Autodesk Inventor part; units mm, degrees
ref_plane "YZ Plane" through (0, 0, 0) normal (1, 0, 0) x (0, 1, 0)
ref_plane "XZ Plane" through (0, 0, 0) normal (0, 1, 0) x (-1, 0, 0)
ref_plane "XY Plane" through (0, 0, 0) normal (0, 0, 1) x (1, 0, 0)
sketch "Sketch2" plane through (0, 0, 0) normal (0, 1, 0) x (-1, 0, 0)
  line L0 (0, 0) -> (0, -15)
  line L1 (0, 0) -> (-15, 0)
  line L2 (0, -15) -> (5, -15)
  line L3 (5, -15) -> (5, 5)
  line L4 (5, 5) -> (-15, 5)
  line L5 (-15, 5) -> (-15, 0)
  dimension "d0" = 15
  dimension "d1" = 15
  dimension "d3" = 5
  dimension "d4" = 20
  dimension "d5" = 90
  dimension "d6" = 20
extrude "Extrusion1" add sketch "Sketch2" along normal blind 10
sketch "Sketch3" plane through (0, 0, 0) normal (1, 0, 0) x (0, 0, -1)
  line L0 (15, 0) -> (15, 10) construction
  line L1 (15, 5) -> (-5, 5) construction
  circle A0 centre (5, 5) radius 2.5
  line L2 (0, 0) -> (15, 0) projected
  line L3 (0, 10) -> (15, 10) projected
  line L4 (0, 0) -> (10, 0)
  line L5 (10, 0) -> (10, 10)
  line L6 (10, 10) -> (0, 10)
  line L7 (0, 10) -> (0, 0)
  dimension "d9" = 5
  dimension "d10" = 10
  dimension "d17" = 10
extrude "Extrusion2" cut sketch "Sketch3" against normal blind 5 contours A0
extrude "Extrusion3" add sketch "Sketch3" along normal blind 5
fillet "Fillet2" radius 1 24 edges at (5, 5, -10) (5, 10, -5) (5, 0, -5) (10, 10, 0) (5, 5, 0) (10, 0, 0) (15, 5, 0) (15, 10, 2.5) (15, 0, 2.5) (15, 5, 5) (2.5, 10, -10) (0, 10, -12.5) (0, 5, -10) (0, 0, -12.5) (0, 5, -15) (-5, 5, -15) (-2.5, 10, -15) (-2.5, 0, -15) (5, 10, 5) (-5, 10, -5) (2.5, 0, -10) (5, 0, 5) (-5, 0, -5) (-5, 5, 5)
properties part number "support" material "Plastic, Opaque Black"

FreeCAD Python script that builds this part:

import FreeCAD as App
import Part
import Sketcher
from FreeCAD import Vector


def edges_at(feature, points):
    """Names of the edges that pass closest to the given points."""
    edges = feature.Shape.Edges
    near = lambda p: min(range(len(edges)), key=lambda i: edges[i].distToShape(Part.Vertex(*p))[0])
    return sorted({f"Edge{near(p) + 1}" for p in points})

doc = App.newDocument("Part")
body = doc.addObject("PartDesign::Body", "Body")

sketch1 = body.newObject("Sketcher::SketchObject", "Sketch")
sketch1.AttachmentSupport = (doc.getObject("XZ_Plane"), [""])
sketch1.MapMode = "FlatFace"
sketch1.addGeometry([
    Part.LineSegment(Vector(15, 0, 0), Vector(0, 0, 0)),
    Part.LineSegment(Vector(0, 0, 0), Vector(0, -15, 0)),
    Part.LineSegment(Vector(0, -15, 0), Vector(-5, -15, 0)),
    Part.LineSegment(Vector(-5, -15, 0), Vector(-5, 5, 0)),
    Part.LineSegment(Vector(-5, 5, 0), Vector(15, 5, 0)),
    Part.LineSegment(Vector(15, 5, 0), Vector(15, 0, 0)),
], False)
sketch1.addConstraint([
    Sketcher.Constraint("Coincident", 0, 2, 1, 1),
    Sketcher.Constraint("Coincident", 1, 2, 2, 1),
    Sketcher.Constraint("Coincident", 2, 2, 3, 1),
    Sketcher.Constraint("Coincident", 3, 2, 4, 1),
    Sketcher.Constraint("Coincident", 4, 2, 5, 1),
    Sketcher.Constraint("Coincident", 5, 2, 0, 1),
    Sketcher.Constraint("Horizontal", 0),
    Sketcher.Constraint("Vertical", 1),
    Sketcher.Constraint("Horizontal", 2),
    Sketcher.Constraint("Vertical", 3),
    Sketcher.Constraint("Horizontal", 4),
    Sketcher.Constraint("Vertical", 5),
    Sketcher.Constraint("Coincident", 0, 2, -1, 1),
    Sketcher.Constraint("Equal", 0, 1),
    Sketcher.Constraint("Equal", 4, 3),
    Sketcher.Constraint("DistanceX", 0, 2, 0, 1, 15.0),
    Sketcher.Constraint("DistanceX", 2, 2, 2, 1, 5.0),
])
pad1 = body.newObject("PartDesign::Pad", "Pad")
pad1.Profile = sketch1
pad1.Length = 10
pad1.Reversed = True

sketch2 = body.newObject("Sketcher::SketchObject", "Sketch001")
sketch2.AttachmentSupport = (doc.getObject("YZ_Plane"), [""])
sketch2.MapMode = "FlatFace"
sketch2.addGeometry(Part.Circle(Vector(5, -5, 0), Vector(0, 0, 1), 2.5), False)
sketch2.addConstraint([
    Sketcher.Constraint("Diameter", 0, 5.0),
    Sketcher.Constraint("DistanceX", -1, 1, 0, 3, 5.0),
    Sketcher.Constraint("DistanceY", 0, 3, -1, 1, 5.0),
])
pocket1 = body.newObject("PartDesign::Pocket", "Pocket")
pocket1.Profile = sketch2
pocket1.Length = 5

sketch3 = body.newObject("Sketcher::SketchObject", "Sketch002")
sketch3.AttachmentSupport = (doc.getObject("YZ_Plane"), [""])
sketch3.MapMode = "FlatFace"
sketch3.addGeometry([
    Part.LineSegment(Vector(10, 0, 0), Vector(0, 0, 0)),
    Part.LineSegment(Vector(0, 0, 0), Vector(0, -10, 0)),
    Part.LineSegment(Vector(0, -10, 0), Vector(10, -10, 0)),
    Part.LineSegment(Vector(10, -10, 0), Vector(10, 0, 0)),
    Part.Circle(Vector(5, -5, 0), Vector(0, 0, 1), 2.5),
], False)
sketch3.addConstraint([
    Sketcher.Constraint("Coincident", 0, 2, 1, 1),
    Sketcher.Constraint("Coincident", 1, 2, 2, 1),
    Sketcher.Constraint("Coincident", 2, 2, 3, 1),
    Sketcher.Constraint("Coincident", 3, 2, 0, 1),
    Sketcher.Constraint("Horizontal", 0),
    Sketcher.Constraint("Vertical", 1),
    Sketcher.Constraint("Horizontal", 2),
    Sketcher.Constraint("Vertical", 3),
    Sketcher.Constraint("Coincident", 0, 2, -1, 1),
    Sketcher.Constraint("Equal", 2, 1),
    Sketcher.Constraint("Diameter", 4, 5.0),
    Sketcher.Constraint("DistanceX", 0, 2, 0, 1, 10.0),
    Sketcher.Constraint("DistanceX", -1, 1, 4, 3, 5.0),
    Sketcher.Constraint("DistanceY", 4, 3, -1, 1, 5.0),
])
pad2 = body.newObject("PartDesign::Pad", "Pad001")
pad2.Profile = sketch3
pad2.Length = 5
doc.recompute()

fillet = body.newObject("PartDesign::Fillet", "Fillet")
fillet.Base = (pad2, edges_at(pad2, [
    (5, 5, -10),
    (5, 10, -5),
    (5, 0, -5),
    (10, 10, 0),
    (5, 5, 0),
    (10, 0, 0),
    (15, 5, 0),
    (15, 10, 2.5),
    (15, 0, 2.5),
    (15, 5, 5),
    (2.5, 10, -10),
    (0, 10, -12.5),
    (0, 5, -10),
    (0, 0, -12.5),
    (0, 5, -15),
    (-5, 5, -15),
    (-2.5, 10, -15),
    (-2.5, 0, -15),
    (5, 10, 5),
    (-5, 10, -5),
    (2.5, 0, -10),
    (5, 0, 5),
    (-5, 0, -5),
    (-5, 5, 5),
]))
fillet.Radius = 1

doc.recompute()
